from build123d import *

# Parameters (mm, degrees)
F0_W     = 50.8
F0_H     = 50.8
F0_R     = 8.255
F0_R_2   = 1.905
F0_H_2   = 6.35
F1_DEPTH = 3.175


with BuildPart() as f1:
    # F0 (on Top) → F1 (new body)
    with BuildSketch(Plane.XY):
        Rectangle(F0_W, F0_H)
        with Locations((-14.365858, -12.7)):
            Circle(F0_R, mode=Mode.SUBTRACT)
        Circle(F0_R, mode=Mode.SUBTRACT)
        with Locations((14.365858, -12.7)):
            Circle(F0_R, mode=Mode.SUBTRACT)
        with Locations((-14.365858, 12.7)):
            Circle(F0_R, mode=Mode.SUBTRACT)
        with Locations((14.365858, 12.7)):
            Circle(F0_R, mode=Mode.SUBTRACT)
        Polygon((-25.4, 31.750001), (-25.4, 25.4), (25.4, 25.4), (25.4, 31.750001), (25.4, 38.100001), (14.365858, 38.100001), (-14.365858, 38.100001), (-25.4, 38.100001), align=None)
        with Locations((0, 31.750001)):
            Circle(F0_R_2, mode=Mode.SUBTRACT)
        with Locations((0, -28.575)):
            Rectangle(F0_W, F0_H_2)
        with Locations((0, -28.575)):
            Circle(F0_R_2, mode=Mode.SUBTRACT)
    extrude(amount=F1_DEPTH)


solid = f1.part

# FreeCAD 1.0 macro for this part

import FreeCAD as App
import Part
import Sketcher
Q = App.Units.Quantity


def add_polygon(sketch, points):
    """Adds a closed chain of lines whose ends are joined by coincident constraints."""
    first, n = sketch.GeometryCount, len(points)
    for a, b in zip(points, points[1:] + points[:1]):
        sketch.addGeometry(Part.LineSegment(App.Vector(*a, 0), App.Vector(*b, 0)), False)
    for i in range(n):
        sketch.addConstraint(Sketcher.Constraint("Coincident", first + i, 2, first + (i + 1) % n, 1))

doc = App.newDocument("Part")
body = doc.addObject("PartDesign::Body", "Body")

# Sketch on XY plane
sketch1 = body.newObject("Sketcher::SketchObject", "Sketch")
sketch1.AttachmentSupport = (doc.getObject("XY_Plane"), [""])
sketch1.MapMode = "FlatFace"
add_polygon(sketch1, [(-25.4, 38.1), (-25.4, -31.8), (25.4, -31.8), (25.4, 38.1)])  # lines 0-3
sketch1.addGeometry(Part.Circle(App.Vector(-14.4, -12.7, 0), App.Vector(0, 0, 1), 8.3), False)  # 4
sketch1.addGeometry(Part.Circle(App.Vector(0, -28.6, 0), App.Vector(0, 0, 1), 1.9), False)  # 5
sketch1.addGeometry(Part.Circle(App.Vector(0, 0, 0), App.Vector(0, 0, 1), 8.3), False)  # 6
sketch1.addGeometry(Part.Circle(App.Vector(14.4, -12.7, 0), App.Vector(0, 0, 1), 8.3), False)  # 7
sketch1.addGeometry(Part.Circle(App.Vector(-14.4, 12.7, 0), App.Vector(0, 0, 1), 8.3), False)  # 8
sketch1.addGeometry(Part.Circle(App.Vector(14.4, 12.7, 0), App.Vector(0, 0, 1), 8.3), False)  # 9
sketch1.addGeometry(Part.Circle(App.Vector(0, 31.8, 0), App.Vector(0, 0, 1), 1.9), False)  # 10
sketch1.addConstraint([
    Sketcher.Constraint("Vertical", 0),
    Sketcher.Constraint("Horizontal", 1),
    Sketcher.Constraint("Vertical", 2),
    Sketcher.Constraint("Horizontal", 3),
    Sketcher.Constraint("Coincident", 6, 3, -1, 1),
    Sketcher.Constraint("Equal", 4, 6),
    Sketcher.Constraint("Equal", 6, 7),
    Sketcher.Constraint("Equal", 7, 8),
    Sketcher.Constraint("Equal", 8, 9),
    Sketcher.Constraint("Equal", 5, 10),
    Sketcher.Constraint("Symmetric", 7, 3, 8, 3, -1, 1),
    Sketcher.Constraint("Symmetric", 4, 3, 9, 3, -1, 1),
    Sketcher.Constraint("Symmetric", 4, 3, 7, 3, -2),
    Sketcher.Constraint("PointOnObject", 5, 3, -2),
    Sketcher.Constraint("PointOnObject", 10, 3, -2),
    Sketcher.Constraint("Diameter", 4, Q("0.65 in")),
    Sketcher.Constraint("Diameter", 5, Q("0.15 in")),
    Sketcher.Constraint("DistanceX", 1, 1, 1, 2, Q("2 in")),
    Sketcher.Constraint("DistanceX", 0, 2, -1, 1, Q("1 in")),
    Sketcher.Constraint("DistanceY", 4, 3, 8, 3, Q("1 in")),
    Sketcher.Constraint("DistanceY", 9, 3, 2, 2, Q("1 in")),
    Sketcher.Constraint("DistanceY", 0, 2, 0, 1, Q("2.75 in")),
    Sketcher.Constraint("DistanceY", -1, 1, 10, 3, Q("1.25 in")),
    Sketcher.Constraint("DistanceY", 5, 3, -1, 1, Q("1.125 in")),
    Sketcher.Constraint("DistanceX", 0, 2, 4, 3, 11.034142),
])
pad1 = body.newObject("PartDesign::Pad", "Pad")
pad1.Profile = sketch1
pad1.Length = Q("0.125 in")

doc.recompute()
